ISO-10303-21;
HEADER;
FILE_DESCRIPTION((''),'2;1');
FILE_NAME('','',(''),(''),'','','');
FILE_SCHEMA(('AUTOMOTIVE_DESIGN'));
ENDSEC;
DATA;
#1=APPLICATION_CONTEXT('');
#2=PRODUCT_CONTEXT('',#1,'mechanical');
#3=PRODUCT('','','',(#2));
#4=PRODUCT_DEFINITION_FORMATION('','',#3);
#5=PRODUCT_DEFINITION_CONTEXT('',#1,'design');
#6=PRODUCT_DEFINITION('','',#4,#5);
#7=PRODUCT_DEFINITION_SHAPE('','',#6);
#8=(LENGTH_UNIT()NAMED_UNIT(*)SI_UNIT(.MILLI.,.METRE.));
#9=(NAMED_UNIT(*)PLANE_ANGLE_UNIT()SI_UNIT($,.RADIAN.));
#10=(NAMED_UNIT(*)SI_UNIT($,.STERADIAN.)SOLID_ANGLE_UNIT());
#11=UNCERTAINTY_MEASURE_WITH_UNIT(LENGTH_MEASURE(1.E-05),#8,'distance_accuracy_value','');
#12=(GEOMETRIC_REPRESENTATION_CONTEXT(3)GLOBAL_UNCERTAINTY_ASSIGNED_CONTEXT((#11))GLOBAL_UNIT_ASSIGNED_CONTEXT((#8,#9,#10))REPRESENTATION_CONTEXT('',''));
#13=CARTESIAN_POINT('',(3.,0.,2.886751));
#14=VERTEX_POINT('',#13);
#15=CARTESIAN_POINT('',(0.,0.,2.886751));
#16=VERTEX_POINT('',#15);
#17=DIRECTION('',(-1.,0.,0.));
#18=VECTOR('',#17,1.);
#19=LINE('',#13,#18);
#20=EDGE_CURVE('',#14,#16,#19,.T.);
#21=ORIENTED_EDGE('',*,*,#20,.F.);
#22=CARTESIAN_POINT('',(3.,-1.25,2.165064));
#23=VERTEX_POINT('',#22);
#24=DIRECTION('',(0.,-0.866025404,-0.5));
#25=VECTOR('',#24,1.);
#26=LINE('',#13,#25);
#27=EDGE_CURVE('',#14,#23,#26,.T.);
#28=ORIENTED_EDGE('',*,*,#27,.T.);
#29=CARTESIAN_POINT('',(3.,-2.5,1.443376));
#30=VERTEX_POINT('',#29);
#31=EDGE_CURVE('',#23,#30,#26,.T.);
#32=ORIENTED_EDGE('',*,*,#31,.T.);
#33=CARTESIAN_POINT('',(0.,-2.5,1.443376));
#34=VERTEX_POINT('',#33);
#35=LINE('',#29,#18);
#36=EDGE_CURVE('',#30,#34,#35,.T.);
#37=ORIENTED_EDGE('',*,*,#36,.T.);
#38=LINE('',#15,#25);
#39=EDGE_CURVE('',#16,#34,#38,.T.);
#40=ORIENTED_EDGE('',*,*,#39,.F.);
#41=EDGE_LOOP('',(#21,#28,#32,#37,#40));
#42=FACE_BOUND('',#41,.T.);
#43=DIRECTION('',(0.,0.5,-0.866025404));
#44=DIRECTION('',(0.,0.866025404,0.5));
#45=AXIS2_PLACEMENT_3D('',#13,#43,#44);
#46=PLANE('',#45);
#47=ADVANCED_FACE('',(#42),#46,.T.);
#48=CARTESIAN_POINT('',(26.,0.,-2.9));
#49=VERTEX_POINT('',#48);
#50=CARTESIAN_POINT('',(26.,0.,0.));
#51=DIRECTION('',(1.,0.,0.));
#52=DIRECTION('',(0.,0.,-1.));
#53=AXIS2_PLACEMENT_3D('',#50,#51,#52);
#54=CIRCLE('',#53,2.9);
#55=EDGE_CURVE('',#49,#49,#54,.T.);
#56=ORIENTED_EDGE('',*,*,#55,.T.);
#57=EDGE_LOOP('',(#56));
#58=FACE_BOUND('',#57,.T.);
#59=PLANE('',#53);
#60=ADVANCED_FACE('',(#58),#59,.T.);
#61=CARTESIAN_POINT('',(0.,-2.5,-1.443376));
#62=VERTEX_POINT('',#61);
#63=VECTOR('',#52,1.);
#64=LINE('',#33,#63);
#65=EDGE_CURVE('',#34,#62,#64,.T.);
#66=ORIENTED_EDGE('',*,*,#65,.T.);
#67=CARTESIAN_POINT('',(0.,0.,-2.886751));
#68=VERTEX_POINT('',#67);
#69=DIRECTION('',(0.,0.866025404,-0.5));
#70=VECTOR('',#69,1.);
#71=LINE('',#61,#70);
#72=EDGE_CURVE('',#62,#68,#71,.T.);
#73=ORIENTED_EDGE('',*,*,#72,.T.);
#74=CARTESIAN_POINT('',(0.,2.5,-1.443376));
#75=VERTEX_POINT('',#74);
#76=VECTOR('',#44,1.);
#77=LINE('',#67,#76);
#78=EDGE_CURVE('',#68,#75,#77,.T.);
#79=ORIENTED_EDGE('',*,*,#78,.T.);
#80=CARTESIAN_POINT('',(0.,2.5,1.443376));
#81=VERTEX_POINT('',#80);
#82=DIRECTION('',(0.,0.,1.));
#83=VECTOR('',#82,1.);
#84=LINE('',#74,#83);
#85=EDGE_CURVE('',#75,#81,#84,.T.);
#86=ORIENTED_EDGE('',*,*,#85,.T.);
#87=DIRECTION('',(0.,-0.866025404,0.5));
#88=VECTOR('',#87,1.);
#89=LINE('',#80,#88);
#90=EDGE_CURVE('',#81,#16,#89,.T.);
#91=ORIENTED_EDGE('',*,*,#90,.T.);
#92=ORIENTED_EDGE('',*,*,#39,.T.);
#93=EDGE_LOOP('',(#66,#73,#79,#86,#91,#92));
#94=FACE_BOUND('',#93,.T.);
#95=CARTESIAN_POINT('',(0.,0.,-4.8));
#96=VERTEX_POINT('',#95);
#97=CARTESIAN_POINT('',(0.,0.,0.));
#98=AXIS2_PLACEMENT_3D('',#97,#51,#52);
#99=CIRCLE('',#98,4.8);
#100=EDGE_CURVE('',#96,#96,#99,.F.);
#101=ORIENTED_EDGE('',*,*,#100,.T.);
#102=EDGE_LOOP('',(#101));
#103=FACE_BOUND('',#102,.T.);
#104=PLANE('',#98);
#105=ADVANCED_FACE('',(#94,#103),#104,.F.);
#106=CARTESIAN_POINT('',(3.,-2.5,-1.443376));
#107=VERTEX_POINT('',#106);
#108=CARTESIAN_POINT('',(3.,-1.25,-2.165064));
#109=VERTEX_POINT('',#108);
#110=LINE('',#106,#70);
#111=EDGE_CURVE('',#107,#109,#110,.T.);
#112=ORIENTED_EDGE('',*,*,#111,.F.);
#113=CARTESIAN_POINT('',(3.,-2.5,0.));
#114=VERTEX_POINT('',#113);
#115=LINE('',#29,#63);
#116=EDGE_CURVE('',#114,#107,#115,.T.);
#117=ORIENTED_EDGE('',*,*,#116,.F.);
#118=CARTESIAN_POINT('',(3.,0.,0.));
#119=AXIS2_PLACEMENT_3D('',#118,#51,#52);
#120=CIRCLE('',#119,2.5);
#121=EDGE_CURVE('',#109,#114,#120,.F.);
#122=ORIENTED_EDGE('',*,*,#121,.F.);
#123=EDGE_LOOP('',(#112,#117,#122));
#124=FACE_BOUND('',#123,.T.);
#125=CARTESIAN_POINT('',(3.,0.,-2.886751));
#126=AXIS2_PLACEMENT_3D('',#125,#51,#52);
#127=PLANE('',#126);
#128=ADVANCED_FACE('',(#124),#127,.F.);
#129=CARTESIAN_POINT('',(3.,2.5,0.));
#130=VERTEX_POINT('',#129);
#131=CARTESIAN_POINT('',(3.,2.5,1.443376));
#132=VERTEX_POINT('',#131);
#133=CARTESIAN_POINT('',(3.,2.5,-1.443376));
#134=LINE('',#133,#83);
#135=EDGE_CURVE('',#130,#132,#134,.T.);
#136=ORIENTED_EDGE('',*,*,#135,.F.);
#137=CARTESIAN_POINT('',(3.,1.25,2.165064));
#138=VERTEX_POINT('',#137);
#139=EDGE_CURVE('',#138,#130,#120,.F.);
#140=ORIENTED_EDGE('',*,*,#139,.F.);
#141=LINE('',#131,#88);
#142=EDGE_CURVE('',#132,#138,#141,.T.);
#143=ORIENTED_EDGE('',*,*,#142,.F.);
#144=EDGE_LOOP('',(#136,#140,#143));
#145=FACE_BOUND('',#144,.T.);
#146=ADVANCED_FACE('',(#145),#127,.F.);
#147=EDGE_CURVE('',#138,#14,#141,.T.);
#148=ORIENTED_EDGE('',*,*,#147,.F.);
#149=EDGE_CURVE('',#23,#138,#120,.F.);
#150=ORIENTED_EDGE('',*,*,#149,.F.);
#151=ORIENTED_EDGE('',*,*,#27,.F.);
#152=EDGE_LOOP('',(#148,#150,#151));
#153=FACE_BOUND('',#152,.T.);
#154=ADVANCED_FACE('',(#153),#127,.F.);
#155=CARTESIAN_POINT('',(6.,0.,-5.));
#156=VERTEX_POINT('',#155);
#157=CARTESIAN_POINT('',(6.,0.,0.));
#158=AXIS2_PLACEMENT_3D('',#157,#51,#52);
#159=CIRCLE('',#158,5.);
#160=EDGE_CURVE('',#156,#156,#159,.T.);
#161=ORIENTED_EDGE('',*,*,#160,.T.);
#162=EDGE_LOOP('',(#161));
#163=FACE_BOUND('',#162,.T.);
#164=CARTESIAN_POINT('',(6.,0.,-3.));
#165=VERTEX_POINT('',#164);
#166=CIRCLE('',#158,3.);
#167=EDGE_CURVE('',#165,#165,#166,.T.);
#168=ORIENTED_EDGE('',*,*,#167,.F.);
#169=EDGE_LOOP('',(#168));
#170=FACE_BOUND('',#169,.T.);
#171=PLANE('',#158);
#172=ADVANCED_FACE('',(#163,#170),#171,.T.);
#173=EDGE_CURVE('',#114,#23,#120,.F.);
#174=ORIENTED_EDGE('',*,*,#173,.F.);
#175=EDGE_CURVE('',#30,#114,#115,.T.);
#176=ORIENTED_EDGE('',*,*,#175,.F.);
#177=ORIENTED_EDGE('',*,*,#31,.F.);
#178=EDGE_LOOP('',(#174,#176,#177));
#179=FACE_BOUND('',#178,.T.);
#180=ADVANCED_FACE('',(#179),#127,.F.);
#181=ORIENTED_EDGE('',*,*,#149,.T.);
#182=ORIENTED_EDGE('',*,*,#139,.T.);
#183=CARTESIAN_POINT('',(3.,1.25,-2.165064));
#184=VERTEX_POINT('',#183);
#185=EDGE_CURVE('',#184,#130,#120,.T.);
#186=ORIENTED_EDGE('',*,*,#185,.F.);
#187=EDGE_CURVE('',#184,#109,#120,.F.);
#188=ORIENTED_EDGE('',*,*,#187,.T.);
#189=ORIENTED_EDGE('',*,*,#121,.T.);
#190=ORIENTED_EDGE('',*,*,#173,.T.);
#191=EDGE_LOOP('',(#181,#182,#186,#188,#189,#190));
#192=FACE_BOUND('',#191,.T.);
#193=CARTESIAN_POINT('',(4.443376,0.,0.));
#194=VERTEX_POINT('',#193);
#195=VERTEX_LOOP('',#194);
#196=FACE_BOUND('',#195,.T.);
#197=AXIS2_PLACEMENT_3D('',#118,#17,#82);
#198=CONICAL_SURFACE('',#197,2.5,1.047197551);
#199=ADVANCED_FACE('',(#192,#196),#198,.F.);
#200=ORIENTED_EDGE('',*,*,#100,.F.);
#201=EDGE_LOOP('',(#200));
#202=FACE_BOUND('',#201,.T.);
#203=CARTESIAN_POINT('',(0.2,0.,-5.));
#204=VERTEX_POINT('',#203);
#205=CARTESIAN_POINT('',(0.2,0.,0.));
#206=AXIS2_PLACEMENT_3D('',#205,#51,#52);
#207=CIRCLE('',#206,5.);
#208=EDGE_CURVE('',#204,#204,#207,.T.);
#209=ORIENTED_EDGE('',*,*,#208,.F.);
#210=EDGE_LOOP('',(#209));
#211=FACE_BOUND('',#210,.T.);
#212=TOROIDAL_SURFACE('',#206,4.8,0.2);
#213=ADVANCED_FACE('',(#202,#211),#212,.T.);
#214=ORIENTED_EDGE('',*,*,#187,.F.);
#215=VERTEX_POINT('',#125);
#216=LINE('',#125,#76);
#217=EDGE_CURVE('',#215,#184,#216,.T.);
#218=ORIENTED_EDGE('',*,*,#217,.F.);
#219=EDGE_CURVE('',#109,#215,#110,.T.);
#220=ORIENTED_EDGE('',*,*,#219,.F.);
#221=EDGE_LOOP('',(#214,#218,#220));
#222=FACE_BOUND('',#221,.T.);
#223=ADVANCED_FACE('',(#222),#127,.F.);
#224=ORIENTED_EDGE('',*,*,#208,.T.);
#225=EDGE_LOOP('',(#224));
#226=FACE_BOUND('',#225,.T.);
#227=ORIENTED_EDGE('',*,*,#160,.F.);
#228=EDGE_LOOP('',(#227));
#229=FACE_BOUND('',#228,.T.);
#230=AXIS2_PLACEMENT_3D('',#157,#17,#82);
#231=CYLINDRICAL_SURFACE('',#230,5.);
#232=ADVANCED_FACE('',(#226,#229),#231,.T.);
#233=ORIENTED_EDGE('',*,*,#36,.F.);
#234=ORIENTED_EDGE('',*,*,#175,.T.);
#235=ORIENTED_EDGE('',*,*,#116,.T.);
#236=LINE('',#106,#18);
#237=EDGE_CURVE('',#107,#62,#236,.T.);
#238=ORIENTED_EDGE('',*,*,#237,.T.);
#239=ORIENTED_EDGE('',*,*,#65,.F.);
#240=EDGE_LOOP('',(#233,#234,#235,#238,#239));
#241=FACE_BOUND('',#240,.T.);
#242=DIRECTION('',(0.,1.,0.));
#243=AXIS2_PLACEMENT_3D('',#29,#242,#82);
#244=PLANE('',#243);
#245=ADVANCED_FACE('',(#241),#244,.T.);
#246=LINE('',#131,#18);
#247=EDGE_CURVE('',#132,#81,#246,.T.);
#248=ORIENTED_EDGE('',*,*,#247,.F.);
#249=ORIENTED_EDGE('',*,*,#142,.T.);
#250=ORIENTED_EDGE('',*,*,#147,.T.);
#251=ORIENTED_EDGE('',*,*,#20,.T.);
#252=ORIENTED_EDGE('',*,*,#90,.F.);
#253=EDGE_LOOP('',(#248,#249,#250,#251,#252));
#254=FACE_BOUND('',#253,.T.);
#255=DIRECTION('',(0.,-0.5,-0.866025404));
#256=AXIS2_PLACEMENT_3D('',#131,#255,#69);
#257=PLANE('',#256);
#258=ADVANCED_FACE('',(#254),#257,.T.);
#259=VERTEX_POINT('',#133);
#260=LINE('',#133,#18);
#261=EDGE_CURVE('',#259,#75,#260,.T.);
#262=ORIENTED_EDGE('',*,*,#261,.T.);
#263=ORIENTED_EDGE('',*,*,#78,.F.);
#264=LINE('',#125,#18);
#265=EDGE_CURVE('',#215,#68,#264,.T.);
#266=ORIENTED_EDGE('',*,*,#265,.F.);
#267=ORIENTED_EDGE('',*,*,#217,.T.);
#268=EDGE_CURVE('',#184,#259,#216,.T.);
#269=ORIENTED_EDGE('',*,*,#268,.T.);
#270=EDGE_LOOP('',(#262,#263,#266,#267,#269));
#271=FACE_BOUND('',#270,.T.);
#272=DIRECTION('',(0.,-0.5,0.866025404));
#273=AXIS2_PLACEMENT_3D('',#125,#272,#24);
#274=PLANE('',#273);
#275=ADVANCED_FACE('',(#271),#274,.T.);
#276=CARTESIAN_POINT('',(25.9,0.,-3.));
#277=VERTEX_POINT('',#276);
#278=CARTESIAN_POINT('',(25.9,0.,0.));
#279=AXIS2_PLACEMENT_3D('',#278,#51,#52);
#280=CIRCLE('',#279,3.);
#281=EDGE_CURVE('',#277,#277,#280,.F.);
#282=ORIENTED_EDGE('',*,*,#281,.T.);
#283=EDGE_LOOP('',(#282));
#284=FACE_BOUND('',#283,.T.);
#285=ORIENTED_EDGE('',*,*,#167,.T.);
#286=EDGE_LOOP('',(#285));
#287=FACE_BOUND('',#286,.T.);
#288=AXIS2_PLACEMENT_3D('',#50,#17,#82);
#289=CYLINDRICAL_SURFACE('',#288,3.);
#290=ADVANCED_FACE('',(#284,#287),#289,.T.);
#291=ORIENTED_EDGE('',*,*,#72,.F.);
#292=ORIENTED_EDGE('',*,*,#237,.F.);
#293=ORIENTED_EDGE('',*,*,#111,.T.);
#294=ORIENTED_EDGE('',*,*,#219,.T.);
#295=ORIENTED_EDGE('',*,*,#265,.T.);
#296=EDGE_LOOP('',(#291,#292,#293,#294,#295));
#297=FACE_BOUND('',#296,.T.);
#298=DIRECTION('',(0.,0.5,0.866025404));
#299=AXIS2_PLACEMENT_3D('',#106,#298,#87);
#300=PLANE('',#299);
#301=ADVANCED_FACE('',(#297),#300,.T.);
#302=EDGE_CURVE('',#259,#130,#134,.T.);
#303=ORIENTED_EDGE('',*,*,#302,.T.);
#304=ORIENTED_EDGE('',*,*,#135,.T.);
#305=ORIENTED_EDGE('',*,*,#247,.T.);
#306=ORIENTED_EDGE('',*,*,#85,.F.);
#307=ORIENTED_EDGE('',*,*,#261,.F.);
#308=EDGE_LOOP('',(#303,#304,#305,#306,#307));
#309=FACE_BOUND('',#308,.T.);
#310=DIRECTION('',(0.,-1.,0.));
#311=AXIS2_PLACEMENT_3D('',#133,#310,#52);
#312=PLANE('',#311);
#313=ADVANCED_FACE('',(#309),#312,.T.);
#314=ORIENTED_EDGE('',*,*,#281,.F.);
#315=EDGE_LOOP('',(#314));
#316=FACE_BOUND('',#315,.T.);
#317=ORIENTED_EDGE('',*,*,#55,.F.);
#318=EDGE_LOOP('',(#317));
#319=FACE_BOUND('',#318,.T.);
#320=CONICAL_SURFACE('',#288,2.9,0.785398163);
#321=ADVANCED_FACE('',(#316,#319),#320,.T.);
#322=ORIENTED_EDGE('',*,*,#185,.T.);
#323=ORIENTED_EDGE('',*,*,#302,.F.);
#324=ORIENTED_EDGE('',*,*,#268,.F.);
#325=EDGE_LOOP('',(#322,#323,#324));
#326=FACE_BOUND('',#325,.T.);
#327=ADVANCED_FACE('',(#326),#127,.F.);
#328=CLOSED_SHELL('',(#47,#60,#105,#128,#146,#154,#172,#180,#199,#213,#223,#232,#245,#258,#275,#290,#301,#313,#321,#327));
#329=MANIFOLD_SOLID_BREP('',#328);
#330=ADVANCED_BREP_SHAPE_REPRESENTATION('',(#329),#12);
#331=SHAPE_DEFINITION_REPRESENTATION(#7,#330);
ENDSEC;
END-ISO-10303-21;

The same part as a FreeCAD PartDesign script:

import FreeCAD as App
import Part
import Sketcher
from FreeCAD import Vector
Q = App.Units.Quantity


def edges_at(feature, points):
    """Names of the edges that pass closest to the given points."""
    edges = feature.Shape.Edges
    near = lambda p: min(range(len(edges)), key=lambda i: edges[i].distToShape(Part.Vertex(*p))[0])
    return sorted({f"Edge{near(p) + 1}" for p in points})

doc = App.newDocument("Part")
body = doc.addObject("PartDesign::Body", "Body")

# Sketch on YZ plane
sketch1 = body.newObject("Sketcher::SketchObject", "Sketch")
sketch1.AttachmentSupport = (doc.getObject("YZ_Plane"), [""])
sketch1.MapMode = "FlatFace"
sketch1.addGeometry(Part.Circle(Vector(0, 0, 0), Vector(0, 0, 1), 5), False)
sketch1.addConstraint([
    Sketcher.Constraint("Coincident", 0, 3, -1, 1),
    Sketcher.Constraint("Diameter", 0, Q("10 mm")),
])
pad1 = body.newObject("PartDesign::Pad", "Pad")
pad1.Profile = sketch1
pad1.Length = 6

# Sketch on YZ plane
sketch2 = body.newObject("Sketcher::SketchObject", "Sketch001")
sketch2.AttachmentSupport = (doc.getObject("YZ_Plane"), [""])
sketch2.MapMode = "FlatFace"
sketch2.AttachmentOffset = App.Placement(Vector(0, 0, 6), App.Rotation())
sketch2.addGeometry(Part.Circle(Vector(0, 0, 0), Vector(0, 0, 1), 3), False)
sketch2.addConstraint([
    Sketcher.Constraint("Coincident", 0, 3, -1, 1),
    Sketcher.Constraint("Diameter", 0, Q("6 mm")),
])
pad2 = body.newObject("PartDesign::Pad", "Pad001")
pad2.Profile = sketch2
pad2.Length = 20

# Sketch on YZ plane
sketch3 = body.newObject("Sketcher::SketchObject", "Sketch002")
sketch3.AttachmentSupport = (doc.getObject("YZ_Plane"), [""])
sketch3.MapMode = "FlatFace"
sketch3.addGeometry([
    Part.LineSegment(Vector(0, -2.9, 0), Vector(2.5, -1.4, 0)),  # 0
    Part.LineSegment(Vector(2.5, -1.4, 0), Vector(2.5, 1.4, 0)),  # 1
    Part.LineSegment(Vector(2.5, 1.4, 0), Vector(0, 2.9, 0)),  # 2
    Part.LineSegment(Vector(0, 2.9, 0), Vector(-2.5, 1.4, 0)),  # 3
    Part.LineSegment(Vector(-2.5, 1.4, 0), Vector(-2.5, -1.4, 0)),  # 4
    Part.LineSegment(Vector(-2.5, -1.4, 0), Vector(0, -2.9, 0)),  # 5
], False)
sketch3.addConstraint([
    Sketcher.Constraint("Coincident", 0, 2, 1, 1),
    Sketcher.Constraint("Coincident", 1, 2, 2, 1),
    Sketcher.Constraint("Coincident", 2, 2, 3, 1),
    Sketcher.Constraint("Coincident", 3, 2, 4, 1),
    Sketcher.Constraint("Coincident", 4, 2, 5, 1),
    Sketcher.Constraint("Coincident", 5, 2, 0, 1),
    Sketcher.Constraint("Vertical", 1),
    Sketcher.Constraint("Vertical", 4),
    Sketcher.Constraint("Symmetric", 0, 2, 3, 2, -1, 1),
    Sketcher.Constraint("Symmetric", 2, 2, 5, 2, -1, 1),
    Sketcher.Constraint("PointOnObject", 2, 2, -2),
    Sketcher.Constraint("Parallel", 2, 5),
    Sketcher.Constraint("Horizontal", 1, 2, 3, 2),
    Sketcher.Constraint("Angle", 0, Q("30 deg")),
    Sketcher.Constraint("DistanceX", 3, 2, 1, 2, Q("5 mm")),
    Sketcher.Constraint("DistanceY", 1, 1, 1, 2, Q("2.886751 mm")),
])
pocket1 = body.newObject("PartDesign::Pocket", "Pocket")
pocket1.Profile = sketch3
pocket1.Length = 3
pocket1.Reversed = True

# Sketch on XY plane
sketch4 = body.newObject("Sketcher::SketchObject", "Sketch003")
sketch4.AttachmentSupport = (doc.getObject("XY_Plane"), [""])
sketch4.MapMode = "FlatFace"
sketch4.addGeometry([
    Part.LineSegment(Vector(3, -2.5, 0), Vector(4.4, 0, 0)),
    Part.LineSegment(Vector(4.4, 0, 0), Vector(3, 0, 0)),
    Part.LineSegment(Vector(3, 0, 0), Vector(3, -2.5, 0)),
], False)
sketch4.addConstraint([
    Sketcher.Constraint("Coincident", 0, 2, 1, 1),
    Sketcher.Constraint("Coincident", 1, 2, 2, 1),
    Sketcher.Constraint("Coincident", 2, 2, 0, 1),
    Sketcher.Constraint("Horizontal", 1),
    Sketcher.Constraint("Vertical", 2),
    Sketcher.Constraint("PointOnObject", 0, 2, -1),
    Sketcher.Constraint("Angle", 0, Q("60 deg")),
    Sketcher.Constraint("DistanceY", 2, 2, 2, 1, Q("2.5 mm")),
    Sketcher.Constraint("DistanceX", -1, 1, 1, 2, Q("3 mm")),
])
groove = body.newObject("PartDesign::Groove", "Groove")
groove.Profile = sketch4
groove.ReferenceAxis = (sketch4, ["H_Axis"])
groove.Angle = 360
doc.recompute()

fillet = body.newObject("PartDesign::Fillet", "Fillet")
fillet.Base = (groove, edges_at(groove, [(0, 0, 5)]))
fillet.Radius = 0.2
doc.recompute()

chamfer = body.newObject("PartDesign::Chamfer", "Chamfer")
chamfer.Base = (fillet, edges_at(fillet, [(26, 0, 3)]))
chamfer.Size = 0.1

doc.recompute()
